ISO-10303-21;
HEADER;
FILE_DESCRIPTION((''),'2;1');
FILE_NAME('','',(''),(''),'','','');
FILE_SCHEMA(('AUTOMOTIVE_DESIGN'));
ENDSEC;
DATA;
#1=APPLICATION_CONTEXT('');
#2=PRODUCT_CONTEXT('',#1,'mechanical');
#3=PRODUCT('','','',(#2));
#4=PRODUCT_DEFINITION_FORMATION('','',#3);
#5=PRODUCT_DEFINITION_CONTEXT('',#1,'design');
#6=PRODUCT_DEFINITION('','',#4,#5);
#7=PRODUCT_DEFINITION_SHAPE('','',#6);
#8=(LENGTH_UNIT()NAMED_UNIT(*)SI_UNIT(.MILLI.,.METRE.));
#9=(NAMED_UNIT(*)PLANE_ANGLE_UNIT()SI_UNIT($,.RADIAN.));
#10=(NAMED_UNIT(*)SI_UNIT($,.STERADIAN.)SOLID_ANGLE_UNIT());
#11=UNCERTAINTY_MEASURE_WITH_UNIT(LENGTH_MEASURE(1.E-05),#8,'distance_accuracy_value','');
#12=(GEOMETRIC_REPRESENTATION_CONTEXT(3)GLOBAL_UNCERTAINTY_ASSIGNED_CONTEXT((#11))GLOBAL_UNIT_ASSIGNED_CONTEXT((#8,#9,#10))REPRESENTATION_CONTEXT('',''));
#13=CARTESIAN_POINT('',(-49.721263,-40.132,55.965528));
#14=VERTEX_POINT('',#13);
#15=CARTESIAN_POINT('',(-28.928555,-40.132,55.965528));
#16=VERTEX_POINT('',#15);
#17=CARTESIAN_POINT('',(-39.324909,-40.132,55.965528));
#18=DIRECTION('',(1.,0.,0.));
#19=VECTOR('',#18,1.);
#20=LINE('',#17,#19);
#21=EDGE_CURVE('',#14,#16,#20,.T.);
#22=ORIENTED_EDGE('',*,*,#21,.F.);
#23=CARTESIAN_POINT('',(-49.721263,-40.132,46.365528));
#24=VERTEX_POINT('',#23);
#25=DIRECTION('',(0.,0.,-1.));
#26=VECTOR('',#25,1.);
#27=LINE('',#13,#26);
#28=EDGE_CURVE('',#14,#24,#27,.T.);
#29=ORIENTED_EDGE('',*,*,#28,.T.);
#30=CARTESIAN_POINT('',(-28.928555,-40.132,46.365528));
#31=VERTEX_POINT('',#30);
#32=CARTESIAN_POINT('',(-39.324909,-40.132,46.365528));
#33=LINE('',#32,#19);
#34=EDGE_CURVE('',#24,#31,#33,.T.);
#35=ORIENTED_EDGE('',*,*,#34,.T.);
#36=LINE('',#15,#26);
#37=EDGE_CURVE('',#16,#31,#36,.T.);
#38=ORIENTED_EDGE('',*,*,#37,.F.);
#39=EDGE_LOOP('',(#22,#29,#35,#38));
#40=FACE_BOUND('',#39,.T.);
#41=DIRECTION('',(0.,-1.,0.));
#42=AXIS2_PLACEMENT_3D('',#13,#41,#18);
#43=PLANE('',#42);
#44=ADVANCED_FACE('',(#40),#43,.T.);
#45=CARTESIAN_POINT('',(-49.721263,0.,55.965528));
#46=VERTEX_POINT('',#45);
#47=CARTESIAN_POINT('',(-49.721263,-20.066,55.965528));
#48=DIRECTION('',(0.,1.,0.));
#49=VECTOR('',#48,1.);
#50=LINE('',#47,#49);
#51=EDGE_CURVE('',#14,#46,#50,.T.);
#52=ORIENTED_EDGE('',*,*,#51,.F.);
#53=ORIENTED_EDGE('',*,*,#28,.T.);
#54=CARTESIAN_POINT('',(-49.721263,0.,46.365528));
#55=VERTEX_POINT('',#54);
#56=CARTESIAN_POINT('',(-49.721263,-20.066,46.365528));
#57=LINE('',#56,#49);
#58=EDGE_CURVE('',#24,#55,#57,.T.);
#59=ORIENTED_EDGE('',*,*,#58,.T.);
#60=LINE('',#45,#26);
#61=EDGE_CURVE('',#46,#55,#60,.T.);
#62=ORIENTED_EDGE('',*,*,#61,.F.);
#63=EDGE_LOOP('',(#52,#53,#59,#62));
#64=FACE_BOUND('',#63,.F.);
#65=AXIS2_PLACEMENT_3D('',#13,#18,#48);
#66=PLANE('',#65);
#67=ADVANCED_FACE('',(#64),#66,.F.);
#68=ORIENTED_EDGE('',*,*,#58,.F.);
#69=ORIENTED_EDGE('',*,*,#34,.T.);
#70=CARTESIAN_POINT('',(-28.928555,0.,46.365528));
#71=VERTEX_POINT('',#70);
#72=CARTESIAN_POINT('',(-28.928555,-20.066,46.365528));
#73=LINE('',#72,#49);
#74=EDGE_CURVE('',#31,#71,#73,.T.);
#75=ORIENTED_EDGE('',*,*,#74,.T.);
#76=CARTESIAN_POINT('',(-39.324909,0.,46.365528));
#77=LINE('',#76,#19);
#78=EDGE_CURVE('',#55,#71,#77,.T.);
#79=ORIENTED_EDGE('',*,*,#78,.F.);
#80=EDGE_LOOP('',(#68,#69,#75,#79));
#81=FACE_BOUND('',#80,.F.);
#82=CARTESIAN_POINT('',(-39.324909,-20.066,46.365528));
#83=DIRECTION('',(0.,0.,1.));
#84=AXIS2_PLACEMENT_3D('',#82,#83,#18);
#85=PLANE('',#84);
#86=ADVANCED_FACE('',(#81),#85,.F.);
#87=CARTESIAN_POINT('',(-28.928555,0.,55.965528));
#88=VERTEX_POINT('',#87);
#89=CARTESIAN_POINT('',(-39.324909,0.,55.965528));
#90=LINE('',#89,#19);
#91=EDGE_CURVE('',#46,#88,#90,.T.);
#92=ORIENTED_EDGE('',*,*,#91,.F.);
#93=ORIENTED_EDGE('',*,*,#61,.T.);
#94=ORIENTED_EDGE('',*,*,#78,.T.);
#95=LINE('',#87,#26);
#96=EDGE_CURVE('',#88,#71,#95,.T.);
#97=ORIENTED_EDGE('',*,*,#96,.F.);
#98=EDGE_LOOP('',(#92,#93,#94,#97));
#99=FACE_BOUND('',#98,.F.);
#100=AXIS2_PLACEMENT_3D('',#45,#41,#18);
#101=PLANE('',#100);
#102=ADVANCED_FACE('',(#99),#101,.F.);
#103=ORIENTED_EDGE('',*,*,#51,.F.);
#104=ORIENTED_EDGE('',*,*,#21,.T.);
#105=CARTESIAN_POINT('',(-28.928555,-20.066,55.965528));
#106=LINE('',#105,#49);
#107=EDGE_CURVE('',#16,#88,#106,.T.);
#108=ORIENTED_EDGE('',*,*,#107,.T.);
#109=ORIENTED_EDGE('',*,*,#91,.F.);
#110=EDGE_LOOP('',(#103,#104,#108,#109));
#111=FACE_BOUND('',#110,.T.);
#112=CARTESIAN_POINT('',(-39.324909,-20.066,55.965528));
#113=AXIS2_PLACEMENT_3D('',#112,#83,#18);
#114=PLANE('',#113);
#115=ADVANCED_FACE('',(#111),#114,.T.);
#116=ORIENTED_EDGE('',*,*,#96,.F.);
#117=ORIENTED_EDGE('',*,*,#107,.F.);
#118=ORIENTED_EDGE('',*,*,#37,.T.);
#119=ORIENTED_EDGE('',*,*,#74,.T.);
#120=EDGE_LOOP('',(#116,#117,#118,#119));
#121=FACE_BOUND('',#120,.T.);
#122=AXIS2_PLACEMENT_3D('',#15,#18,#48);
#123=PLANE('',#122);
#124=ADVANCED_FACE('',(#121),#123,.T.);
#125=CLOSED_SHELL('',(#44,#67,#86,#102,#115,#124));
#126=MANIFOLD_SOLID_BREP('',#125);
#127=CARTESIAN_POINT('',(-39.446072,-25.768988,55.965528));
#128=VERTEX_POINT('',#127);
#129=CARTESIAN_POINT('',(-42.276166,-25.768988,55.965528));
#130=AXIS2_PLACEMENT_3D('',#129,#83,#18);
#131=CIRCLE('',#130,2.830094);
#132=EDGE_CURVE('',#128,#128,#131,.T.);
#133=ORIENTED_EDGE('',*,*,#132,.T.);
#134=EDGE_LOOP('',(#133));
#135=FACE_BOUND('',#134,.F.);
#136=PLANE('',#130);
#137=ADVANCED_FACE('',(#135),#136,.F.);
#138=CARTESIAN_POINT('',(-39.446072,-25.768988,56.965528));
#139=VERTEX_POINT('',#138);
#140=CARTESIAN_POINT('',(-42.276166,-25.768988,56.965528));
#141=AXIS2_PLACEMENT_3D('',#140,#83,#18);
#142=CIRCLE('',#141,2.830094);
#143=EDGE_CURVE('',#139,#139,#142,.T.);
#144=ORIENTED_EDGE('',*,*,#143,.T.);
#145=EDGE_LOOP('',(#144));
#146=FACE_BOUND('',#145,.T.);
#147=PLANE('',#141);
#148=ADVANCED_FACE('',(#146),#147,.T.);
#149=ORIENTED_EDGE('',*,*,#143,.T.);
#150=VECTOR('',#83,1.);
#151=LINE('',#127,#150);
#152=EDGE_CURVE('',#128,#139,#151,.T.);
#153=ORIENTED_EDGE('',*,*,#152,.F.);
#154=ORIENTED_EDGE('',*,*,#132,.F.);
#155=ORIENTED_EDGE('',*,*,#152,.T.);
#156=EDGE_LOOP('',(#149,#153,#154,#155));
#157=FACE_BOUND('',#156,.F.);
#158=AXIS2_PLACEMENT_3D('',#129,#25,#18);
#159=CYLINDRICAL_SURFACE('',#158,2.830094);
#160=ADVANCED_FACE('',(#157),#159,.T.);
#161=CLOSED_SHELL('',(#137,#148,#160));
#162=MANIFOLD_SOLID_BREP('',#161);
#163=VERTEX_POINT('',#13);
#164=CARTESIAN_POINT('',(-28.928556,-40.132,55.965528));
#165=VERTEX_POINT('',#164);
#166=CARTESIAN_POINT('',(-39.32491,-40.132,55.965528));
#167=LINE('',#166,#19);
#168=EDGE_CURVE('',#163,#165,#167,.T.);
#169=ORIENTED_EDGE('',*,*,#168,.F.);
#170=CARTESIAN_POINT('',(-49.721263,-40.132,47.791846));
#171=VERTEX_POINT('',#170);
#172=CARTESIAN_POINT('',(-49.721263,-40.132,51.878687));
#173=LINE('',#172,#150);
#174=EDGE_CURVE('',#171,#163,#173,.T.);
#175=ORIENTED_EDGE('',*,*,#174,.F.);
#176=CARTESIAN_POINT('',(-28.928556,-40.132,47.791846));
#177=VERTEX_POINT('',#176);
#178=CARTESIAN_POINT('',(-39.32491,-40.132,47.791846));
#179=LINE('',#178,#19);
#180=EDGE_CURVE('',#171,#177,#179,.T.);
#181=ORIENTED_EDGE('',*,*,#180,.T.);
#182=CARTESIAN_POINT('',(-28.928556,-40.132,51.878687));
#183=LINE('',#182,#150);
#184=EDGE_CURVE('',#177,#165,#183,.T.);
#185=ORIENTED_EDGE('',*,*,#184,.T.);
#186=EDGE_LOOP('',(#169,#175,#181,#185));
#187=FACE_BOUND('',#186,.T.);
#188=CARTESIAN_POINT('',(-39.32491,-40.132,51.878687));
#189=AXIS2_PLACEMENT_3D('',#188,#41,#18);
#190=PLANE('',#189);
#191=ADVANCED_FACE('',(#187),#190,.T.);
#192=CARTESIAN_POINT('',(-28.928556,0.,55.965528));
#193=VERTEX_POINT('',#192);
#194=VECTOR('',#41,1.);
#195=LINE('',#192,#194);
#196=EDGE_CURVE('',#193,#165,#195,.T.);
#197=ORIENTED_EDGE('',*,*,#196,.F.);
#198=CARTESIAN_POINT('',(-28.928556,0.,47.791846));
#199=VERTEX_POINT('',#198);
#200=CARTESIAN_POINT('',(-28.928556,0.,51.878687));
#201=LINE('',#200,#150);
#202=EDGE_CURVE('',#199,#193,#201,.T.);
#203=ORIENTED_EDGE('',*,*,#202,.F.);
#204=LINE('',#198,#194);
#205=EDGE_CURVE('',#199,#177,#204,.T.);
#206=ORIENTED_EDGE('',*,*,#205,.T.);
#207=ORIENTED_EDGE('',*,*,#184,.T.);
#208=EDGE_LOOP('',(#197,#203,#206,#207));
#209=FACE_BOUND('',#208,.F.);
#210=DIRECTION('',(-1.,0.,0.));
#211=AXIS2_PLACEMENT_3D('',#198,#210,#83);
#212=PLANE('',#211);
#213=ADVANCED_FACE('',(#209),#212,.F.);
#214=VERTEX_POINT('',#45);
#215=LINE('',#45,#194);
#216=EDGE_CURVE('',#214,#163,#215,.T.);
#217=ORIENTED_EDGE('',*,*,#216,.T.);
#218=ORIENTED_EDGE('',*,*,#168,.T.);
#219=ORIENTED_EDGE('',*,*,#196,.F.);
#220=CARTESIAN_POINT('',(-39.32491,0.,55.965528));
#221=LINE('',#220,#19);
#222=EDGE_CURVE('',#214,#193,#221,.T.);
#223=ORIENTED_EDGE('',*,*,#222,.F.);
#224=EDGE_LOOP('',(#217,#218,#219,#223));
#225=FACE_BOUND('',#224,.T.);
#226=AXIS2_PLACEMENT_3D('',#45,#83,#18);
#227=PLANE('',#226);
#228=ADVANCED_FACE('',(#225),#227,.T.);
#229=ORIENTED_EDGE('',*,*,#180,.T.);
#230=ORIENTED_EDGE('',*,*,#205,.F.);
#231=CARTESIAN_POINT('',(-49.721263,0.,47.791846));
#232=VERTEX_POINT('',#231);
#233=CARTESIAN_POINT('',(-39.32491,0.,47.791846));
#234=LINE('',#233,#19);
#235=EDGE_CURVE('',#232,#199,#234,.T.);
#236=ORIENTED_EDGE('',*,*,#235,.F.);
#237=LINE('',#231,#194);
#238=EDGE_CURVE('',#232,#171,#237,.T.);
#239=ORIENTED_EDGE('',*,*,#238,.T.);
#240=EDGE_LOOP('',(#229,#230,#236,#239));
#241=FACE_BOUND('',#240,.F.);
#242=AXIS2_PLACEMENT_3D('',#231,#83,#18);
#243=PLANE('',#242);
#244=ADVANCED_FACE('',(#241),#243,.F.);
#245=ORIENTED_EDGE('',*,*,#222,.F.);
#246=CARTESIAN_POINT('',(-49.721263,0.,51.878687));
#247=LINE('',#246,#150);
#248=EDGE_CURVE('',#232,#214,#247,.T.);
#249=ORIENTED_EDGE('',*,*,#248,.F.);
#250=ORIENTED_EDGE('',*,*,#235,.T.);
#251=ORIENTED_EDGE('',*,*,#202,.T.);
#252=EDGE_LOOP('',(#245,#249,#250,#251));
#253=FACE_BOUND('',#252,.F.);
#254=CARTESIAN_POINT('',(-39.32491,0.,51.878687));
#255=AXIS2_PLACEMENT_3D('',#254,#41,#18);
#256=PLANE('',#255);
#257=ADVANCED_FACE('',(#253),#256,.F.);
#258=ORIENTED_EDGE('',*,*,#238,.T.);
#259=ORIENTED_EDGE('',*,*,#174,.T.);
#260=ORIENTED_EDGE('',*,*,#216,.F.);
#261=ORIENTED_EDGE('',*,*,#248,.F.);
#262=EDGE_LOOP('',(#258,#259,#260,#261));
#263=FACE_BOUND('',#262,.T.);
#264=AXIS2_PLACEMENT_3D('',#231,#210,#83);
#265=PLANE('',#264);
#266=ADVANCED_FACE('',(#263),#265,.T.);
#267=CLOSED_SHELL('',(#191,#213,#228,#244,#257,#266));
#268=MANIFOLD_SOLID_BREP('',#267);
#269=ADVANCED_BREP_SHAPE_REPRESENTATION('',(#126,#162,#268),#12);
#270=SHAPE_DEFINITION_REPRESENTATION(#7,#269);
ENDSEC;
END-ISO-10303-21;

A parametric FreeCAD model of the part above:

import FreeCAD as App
import Part
import Sketcher
from FreeCAD import Vector
Q = App.Units.Quantity


def add_polygon(sketch, points):
    """Adds a closed chain of lines whose ends are joined by coincident constraints."""
    first, n = sketch.GeometryCount, len(points)
    for a, b in zip(points, points[1:] + points[:1]):
        sketch.addGeometry(Part.LineSegment(App.Vector(*a, 0), App.Vector(*b, 0)), False)
    for i in range(n):
        sketch.addConstraint(Sketcher.Constraint("Coincident", first + i, 2, first + (i + 1) % n, 1))

doc = App.newDocument("Part")
body = doc.addObject("PartDesign::Body", "Body")

# Sketch on XZ plane
sketch1 = body.newObject("Sketcher::SketchObject", "Sketch")
sketch1.AttachmentSupport = (doc.getObject("XZ_Plane"), [""])
sketch1.MapMode = "FlatFace"
add_polygon(sketch1, [(-50, 56), (-50, 48), (-29, 48), (-29, 56)])  # lines 0-3
sketch1.addConstraint([
    Sketcher.Constraint("Vertical", 0),
    Sketcher.Constraint("Horizontal", 1),
    Sketcher.Constraint("Vertical", 2),
    Sketcher.Constraint("Horizontal", 3),
    Sketcher.Constraint("DistanceX", 1, 1, 1, 2, Q("20.792707 mm")),
    Sketcher.Constraint("DistanceY", 0, 2, 0, 1, Q("8.173682 mm")),
    Sketcher.Constraint("DistanceX", 0, 2, -1, 1, Q("49.721263 mm")),
    Sketcher.Constraint("DistanceY", -1, 1, 0, 2, Q("47.791846 mm")),
])
pad1 = body.newObject("PartDesign::Pad", "Pad")
pad1.Profile = sketch1
pad1.Length = 40.132
body2 = doc.addObject("PartDesign::Body", "Body001")

# Sketch on XY plane
sketch2 = body2.newObject("Sketcher::SketchObject", "Sketch001")
sketch2.AttachmentSupport = (doc.getObject("XY_Plane001"), [""])
sketch2.MapMode = "FlatFace"
sketch2.AttachmentOffset = App.Placement(Vector(0, 0, 55.965528), App.Rotation())
add_polygon(sketch2, [(-50, 0), (-50, -40), (-29, -40), (-29, 0)])  # lines 0-3
sketch2.addConstraint([
    Sketcher.Constraint("Vertical", 0),
    Sketcher.Constraint("Horizontal", 1),
    Sketcher.Constraint("Vertical", 2),
    Sketcher.Constraint("Horizontal", 3),
    Sketcher.Constraint("PointOnObject", 2, 2, -1),
    Sketcher.Constraint("DistanceY", 0, 2, 0, 1, Q("40.132 mm")),
    Sketcher.Constraint("DistanceX", 1, 1, 1, 2, Q("20.792708 mm")),
    Sketcher.Constraint("DistanceX", 0, 2, -1, 1, Q("49.721263 mm")),
])
pad2 = body2.newObject("PartDesign::Pad", "Pad001")
pad2.Profile = sketch2
pad2.Length = 9.6
pad2.Reversed = True
body3 = doc.addObject("PartDesign::Body", "Body002")

# Sketch on XY plane
sketch3 = body3.newObject("Sketcher::SketchObject", "Sketch002")
sketch3.AttachmentSupport = (doc.getObject("XY_Plane002"), [""])
sketch3.MapMode = "FlatFace"
sketch3.AttachmentOffset = App.Placement(Vector(0, 0, 55.965528), App.Rotation())
sketch3.addGeometry(Part.Circle(Vector(-42.3, -25.8, 0), Vector(0, 0, 1), 2.8), False)
sketch3.addConstraint([
    Sketcher.Constraint("Diameter", 0, Q("5.660188 mm")),
    Sketcher.Constraint("DistanceY", 0, 3, -1, 1, Q("25.768988 mm")),
    Sketcher.Constraint("DistanceX", 0, 3, -1, 1, Q("42.276166 mm")),
])
pad3 = body3.newObject("PartDesign::Pad", "Pad002")
pad3.Profile = sketch3
pad3.Length = 1

doc.recompute()
